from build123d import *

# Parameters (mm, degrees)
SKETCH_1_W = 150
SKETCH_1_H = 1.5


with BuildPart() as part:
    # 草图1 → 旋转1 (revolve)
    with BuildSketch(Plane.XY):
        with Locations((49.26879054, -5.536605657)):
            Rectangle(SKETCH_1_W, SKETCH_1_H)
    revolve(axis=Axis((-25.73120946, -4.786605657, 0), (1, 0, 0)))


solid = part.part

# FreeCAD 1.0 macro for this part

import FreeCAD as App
import Part
import Sketcher
from FreeCAD import Vector


def add_polygon(sketch, points):
    """Adds a closed chain of lines whose ends are joined by coincident constraints."""
    first, n = sketch.GeometryCount, len(points)
    for a, b in zip(points, points[1:] + points[:1]):
        sketch.addGeometry(Part.LineSegment(App.Vector(*a, 0), App.Vector(*b, 0)), False)
    for i in range(n):
        sketch.addConstraint(Sketcher.Constraint("Coincident", first + i, 2, first + (i + 1) % n, 1))

doc = App.newDocument("Part")
body = doc.addObject("PartDesign::Body", "Body")

sketch1 = body.newObject("Sketcher::SketchObject", "Sketch")
sketch1.AttachmentSupport = (doc.getObject("XY_Plane"), [""])
sketch1.MapMode = "FlatFace"
add_polygon(sketch1, [(-25.731209, -4.786606), (-25.731209, -6.286606), (124.268791, -6.286606), (124.268791, -4.786606)])
sketch1.addGeometry(Part.LineSegment(Vector(-25.731209, -4.786606, 0), Vector(124.268791, -4.786606, 0)), True)
sketch1.addConstraint([
    Sketcher.Constraint("Vertical", 0),
    Sketcher.Constraint("Horizontal", 1),
    Sketcher.Constraint("Vertical", 2),
    Sketcher.Constraint("Horizontal", 3),
    Sketcher.Constraint("Horizontal", 4),
    Sketcher.Constraint("Coincident", 4, 1, 3, 2),
    Sketcher.Constraint("Vertical", 1, 2, 4, 2),
    Sketcher.Constraint("DistanceX", 1, 1, 1, 2, 150.0),
    Sketcher.Constraint("DistanceY", 0, 2, 0, 1, 1.5),
    Sketcher.Constraint("DistanceX", 0, 2, -1, 1, 25.731209),
    Sketcher.Constraint("DistanceY", 0, 2, -1, 1, 6.286606),
])
revolution = body.newObject("PartDesign::Revolution", "Revolution")
revolution.Profile = sketch1
revolution.ReferenceAxis = (sketch1, ["Axis0"])
revolution.Angle = 360

doc.recompute()
